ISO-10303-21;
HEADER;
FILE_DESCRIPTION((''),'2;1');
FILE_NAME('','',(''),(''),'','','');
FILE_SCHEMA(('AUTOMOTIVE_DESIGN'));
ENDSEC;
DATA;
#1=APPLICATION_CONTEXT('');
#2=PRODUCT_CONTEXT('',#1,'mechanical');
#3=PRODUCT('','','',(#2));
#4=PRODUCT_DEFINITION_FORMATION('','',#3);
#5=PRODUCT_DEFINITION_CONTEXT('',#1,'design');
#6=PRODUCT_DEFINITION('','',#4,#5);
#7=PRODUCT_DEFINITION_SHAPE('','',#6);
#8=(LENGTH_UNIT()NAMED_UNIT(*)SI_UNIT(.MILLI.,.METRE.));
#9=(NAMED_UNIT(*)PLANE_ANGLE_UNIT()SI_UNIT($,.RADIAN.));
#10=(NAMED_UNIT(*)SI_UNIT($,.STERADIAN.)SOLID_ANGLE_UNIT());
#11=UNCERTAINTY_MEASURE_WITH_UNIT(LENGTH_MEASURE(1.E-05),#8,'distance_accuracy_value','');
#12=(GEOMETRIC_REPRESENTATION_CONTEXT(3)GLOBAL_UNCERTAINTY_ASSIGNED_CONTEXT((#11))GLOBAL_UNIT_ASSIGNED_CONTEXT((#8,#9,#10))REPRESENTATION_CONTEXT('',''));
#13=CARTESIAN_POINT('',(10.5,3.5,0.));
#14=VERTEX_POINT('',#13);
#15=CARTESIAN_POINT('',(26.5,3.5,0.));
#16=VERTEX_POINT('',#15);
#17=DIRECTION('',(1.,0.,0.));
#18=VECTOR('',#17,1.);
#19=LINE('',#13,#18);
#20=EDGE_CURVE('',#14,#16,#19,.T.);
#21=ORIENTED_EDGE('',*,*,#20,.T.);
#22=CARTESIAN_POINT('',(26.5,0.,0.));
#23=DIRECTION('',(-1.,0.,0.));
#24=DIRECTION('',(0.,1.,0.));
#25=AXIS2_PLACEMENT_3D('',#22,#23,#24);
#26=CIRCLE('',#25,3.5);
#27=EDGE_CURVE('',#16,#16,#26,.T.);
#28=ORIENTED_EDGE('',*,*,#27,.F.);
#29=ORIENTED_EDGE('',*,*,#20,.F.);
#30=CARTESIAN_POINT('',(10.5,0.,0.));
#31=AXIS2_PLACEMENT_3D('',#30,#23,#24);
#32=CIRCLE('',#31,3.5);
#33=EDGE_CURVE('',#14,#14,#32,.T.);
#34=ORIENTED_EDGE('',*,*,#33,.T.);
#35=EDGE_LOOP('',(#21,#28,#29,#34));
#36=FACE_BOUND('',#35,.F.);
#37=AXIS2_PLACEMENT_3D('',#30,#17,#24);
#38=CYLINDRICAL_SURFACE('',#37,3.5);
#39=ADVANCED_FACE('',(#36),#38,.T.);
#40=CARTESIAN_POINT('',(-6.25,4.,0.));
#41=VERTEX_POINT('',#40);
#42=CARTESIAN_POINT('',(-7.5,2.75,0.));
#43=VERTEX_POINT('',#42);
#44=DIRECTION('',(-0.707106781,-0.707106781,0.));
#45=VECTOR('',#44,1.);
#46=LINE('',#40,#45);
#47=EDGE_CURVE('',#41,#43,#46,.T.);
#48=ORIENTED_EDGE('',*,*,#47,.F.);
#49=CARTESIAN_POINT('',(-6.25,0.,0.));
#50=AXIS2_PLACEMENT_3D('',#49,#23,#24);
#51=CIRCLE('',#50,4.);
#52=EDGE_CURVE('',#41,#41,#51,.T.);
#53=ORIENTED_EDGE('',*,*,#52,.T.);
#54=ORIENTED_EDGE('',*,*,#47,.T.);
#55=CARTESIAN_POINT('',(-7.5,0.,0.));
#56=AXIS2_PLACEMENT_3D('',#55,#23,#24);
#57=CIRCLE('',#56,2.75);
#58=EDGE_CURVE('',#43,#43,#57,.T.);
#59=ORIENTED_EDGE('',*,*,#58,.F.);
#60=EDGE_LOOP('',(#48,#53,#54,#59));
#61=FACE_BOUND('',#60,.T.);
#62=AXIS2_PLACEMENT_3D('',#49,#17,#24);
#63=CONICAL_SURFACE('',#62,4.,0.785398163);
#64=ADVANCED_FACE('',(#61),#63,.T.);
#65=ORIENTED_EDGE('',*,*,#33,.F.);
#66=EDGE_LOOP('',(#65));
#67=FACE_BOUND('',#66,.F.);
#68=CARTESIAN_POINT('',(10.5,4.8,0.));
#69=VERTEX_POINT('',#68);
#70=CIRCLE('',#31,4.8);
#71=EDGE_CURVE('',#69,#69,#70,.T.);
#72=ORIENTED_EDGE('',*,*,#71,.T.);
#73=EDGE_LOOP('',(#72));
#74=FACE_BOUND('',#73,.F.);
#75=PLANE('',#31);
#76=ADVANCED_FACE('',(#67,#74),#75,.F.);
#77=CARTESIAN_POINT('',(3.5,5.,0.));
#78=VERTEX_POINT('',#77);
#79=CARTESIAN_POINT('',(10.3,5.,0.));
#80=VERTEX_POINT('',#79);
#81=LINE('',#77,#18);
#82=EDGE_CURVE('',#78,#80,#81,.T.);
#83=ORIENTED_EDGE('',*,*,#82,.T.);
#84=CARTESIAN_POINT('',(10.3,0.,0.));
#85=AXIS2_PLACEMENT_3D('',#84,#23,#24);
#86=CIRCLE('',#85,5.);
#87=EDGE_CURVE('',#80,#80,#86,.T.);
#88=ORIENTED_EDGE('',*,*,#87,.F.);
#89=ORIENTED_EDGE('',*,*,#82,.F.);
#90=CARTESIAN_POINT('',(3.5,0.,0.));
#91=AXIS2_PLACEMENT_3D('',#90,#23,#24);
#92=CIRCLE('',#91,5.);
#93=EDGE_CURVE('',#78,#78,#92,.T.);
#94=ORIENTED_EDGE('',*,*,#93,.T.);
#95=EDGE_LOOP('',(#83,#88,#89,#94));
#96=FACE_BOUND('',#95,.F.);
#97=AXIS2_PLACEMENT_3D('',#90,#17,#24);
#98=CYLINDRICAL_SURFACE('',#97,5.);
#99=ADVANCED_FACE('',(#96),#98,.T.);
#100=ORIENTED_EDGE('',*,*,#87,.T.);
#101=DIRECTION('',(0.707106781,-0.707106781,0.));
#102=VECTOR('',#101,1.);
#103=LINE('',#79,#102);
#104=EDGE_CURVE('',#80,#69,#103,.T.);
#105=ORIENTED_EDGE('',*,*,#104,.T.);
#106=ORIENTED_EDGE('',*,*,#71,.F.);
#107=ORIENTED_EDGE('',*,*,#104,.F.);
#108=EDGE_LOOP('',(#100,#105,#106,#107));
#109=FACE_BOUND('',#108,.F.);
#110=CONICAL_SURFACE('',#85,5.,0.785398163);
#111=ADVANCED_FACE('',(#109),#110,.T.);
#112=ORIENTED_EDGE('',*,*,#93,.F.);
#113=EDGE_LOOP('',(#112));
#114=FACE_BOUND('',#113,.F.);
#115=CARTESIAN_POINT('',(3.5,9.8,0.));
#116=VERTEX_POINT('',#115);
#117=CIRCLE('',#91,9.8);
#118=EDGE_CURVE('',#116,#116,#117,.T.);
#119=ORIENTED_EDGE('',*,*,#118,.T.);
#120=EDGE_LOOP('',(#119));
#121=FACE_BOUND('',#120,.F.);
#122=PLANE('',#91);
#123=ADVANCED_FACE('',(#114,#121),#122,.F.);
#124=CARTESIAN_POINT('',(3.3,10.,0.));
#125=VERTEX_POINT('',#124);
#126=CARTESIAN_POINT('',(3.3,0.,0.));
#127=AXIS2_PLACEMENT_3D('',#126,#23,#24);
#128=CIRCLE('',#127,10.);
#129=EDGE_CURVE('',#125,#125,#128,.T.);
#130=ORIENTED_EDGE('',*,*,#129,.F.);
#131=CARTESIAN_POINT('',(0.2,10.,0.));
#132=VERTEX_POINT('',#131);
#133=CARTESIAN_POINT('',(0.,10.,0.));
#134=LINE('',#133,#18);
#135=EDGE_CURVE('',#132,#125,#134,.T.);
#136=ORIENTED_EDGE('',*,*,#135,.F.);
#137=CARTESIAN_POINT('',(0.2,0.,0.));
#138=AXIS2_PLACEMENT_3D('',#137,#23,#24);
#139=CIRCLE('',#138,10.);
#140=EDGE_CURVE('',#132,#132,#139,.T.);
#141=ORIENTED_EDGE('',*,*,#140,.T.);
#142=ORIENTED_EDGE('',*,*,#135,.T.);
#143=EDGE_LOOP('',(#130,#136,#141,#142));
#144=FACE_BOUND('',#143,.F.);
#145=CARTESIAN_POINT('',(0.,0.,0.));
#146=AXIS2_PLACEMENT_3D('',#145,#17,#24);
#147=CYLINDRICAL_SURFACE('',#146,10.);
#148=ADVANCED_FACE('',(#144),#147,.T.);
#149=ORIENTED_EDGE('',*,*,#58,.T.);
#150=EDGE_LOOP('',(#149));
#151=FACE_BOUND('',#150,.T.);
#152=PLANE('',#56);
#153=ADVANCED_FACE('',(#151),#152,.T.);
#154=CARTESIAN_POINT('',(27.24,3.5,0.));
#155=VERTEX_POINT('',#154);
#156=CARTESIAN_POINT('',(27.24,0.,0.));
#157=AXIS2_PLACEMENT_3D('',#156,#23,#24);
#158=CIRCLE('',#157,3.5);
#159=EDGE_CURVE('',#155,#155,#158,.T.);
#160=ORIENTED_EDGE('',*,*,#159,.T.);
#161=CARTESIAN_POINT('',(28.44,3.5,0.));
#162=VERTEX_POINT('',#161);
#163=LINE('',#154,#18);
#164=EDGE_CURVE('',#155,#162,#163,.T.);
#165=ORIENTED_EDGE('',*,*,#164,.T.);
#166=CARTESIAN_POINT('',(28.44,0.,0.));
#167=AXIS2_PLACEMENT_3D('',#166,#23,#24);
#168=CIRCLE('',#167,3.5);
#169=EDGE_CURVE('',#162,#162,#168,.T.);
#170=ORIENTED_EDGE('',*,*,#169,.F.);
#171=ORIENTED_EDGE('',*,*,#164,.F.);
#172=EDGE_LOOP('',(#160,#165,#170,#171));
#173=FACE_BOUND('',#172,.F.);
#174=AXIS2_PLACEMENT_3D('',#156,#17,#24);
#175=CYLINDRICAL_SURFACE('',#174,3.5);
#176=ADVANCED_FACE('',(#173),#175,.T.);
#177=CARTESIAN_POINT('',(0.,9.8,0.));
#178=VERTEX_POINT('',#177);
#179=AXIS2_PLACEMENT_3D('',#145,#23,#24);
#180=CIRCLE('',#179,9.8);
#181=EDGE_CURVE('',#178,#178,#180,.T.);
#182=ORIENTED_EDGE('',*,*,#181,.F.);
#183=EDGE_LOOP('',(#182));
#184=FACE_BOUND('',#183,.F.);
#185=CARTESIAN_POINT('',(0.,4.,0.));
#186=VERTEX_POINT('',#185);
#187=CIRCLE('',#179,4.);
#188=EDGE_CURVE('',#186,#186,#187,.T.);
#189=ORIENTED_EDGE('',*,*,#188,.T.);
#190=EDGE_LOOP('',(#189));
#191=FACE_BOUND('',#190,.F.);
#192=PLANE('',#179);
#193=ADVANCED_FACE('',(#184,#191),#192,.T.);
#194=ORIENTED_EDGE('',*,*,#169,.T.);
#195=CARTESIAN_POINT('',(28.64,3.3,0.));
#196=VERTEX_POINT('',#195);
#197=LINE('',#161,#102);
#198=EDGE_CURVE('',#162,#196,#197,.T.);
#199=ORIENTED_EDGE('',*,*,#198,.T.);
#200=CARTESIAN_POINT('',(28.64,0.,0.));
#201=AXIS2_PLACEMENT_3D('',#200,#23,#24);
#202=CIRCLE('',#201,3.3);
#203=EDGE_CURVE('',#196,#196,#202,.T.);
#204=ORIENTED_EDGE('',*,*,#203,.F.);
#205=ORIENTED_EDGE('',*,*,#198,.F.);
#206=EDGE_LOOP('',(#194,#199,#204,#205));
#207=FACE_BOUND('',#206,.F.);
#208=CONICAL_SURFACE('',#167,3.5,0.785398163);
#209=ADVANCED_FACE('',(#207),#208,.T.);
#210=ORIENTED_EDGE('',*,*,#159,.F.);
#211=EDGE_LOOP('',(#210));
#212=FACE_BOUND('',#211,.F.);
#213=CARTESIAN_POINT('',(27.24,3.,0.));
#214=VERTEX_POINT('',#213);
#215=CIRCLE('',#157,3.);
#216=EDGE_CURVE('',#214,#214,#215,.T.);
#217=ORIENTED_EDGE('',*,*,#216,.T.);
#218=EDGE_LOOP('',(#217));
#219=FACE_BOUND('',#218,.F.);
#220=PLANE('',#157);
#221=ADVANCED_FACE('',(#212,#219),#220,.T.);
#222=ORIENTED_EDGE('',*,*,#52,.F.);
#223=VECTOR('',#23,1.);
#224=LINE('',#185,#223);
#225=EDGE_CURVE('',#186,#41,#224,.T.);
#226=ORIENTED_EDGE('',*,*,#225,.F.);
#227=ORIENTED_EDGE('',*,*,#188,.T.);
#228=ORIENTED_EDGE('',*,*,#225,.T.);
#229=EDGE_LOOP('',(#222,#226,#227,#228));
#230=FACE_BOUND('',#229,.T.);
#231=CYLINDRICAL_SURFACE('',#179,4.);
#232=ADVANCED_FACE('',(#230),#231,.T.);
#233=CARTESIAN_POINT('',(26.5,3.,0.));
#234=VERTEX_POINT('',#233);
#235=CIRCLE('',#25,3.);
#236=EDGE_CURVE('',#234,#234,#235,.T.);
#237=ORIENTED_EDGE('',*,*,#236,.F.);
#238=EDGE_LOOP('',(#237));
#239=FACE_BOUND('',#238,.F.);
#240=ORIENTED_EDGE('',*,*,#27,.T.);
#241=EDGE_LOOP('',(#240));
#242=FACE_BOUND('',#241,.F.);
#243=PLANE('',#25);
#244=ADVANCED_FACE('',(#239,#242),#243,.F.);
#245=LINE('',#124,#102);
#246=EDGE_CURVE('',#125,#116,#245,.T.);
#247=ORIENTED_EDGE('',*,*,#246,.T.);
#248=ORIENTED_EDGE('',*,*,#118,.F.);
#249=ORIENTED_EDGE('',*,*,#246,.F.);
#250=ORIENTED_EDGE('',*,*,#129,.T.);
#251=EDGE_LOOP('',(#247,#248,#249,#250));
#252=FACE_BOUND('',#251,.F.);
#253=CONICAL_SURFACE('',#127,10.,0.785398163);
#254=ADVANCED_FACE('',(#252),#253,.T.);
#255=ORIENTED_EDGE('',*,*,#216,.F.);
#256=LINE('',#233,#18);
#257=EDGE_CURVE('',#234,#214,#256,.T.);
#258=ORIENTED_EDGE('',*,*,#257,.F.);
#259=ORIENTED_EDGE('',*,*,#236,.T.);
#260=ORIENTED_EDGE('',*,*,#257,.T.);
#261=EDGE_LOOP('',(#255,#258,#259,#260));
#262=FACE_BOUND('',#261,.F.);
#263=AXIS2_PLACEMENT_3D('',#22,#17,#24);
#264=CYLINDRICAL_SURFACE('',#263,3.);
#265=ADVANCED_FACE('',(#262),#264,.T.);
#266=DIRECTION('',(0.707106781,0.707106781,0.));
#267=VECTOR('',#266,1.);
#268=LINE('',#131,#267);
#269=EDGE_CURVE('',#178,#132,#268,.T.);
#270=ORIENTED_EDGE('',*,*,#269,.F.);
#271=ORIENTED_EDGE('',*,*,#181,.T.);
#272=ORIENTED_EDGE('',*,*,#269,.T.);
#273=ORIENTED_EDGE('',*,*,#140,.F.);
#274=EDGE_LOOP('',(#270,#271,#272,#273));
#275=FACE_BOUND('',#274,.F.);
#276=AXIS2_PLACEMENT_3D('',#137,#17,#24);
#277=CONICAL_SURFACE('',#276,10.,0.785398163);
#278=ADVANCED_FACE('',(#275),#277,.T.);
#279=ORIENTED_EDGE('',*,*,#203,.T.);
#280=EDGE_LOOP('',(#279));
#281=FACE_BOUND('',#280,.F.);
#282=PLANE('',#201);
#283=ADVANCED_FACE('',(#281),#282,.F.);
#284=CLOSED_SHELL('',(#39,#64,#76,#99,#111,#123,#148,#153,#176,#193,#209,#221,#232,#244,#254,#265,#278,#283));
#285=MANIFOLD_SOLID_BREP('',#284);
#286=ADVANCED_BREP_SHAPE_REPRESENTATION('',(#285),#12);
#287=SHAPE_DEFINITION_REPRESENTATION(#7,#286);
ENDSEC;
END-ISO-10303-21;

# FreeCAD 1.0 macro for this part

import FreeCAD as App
import Part
import Sketcher


def edges_at(feature, points):
    """Names of the edges that pass closest to the given points."""
    edges = feature.Shape.Edges
    near = lambda p: min(range(len(edges)), key=lambda i: edges[i].distToShape(Part.Vertex(*p))[0])
    return sorted({f"Edge{near(p) + 1}" for p in points})


def add_polygon(sketch, points):
    """Adds a closed chain of lines whose ends are joined by coincident constraints."""
    first, n = sketch.GeometryCount, len(points)
    for a, b in zip(points, points[1:] + points[:1]):
        sketch.addGeometry(Part.LineSegment(App.Vector(*a, 0), App.Vector(*b, 0)), False)
    for i in range(n):
        sketch.addConstraint(Sketcher.Constraint("Coincident", first + i, 2, first + (i + 1) % n, 1))

doc = App.newDocument("Part")
params = doc.addObject("Spreadsheet::Sheet", "Params")
for row, (alias, value) in enumerate([
    ("sketch1_width", "16 mm"),
    ("sketch1_width2", "7 mm"),
    ("sketch1_height", "6 mm"),
    ("sketch1_width3", "1.2 mm"),
    ("sketch1_width4", "3.5 mm"),
    ("revolution_angle", "360 deg"),
    ("chamfer_size", "0.2 mm"),
    ("chamfer2_size", "1.25 mm"),
], start=1):
    params.set(f"A{row}", alias)
    params.set(f"B{row}", "=" + value)
    params.setAlias(f"B{row}", alias)

body = doc.addObject("PartDesign::Body", "Body")

# Sketch on XY plane
sketch1 = body.newObject("Sketcher::SketchObject", "Sketch")
sketch1.AttachmentSupport = (doc.getObject("XY_Plane"), [""])
sketch1.MapMode = "FlatFace"
add_polygon(sketch1, [(-7.5, 0), (28.64, 0), (28.64, 3.3), (28.44, 3.5), (27.24, 3.5), (27.24, 3), (26.5, 3), (26.5, 3.5), (10.5, 3.5), (10.5, 5), (3.5, 5), (3.5, 10), (0, 10), (0, 4), (-7.5, 4)])  # lines 0-14
sketch1.addConstraint(Sketcher.Constraint("Horizontal", 0))
sketch1.addConstraint(Sketcher.Constraint("Vertical", 1))
sketch1.addConstraint(Sketcher.Constraint("Horizontal", 3))
sketch1.addConstraint(Sketcher.Constraint("Vertical", 4))
sketch1.addConstraint(Sketcher.Constraint("Horizontal", 5))
sketch1.addConstraint(Sketcher.Constraint("Vertical", 6))
sketch1.addConstraint(Sketcher.Constraint("Horizontal", 7))
sketch1.addConstraint(Sketcher.Constraint("Vertical", 8))
sketch1.addConstraint(Sketcher.Constraint("Horizontal", 9))
sketch1.addConstraint(Sketcher.Constraint("Vertical", 10))
sketch1.addConstraint(Sketcher.Constraint("Horizontal", 11))
sketch1.addConstraint(Sketcher.Constraint("Vertical", 12))
sketch1.addConstraint(Sketcher.Constraint("Horizontal", 13))
sketch1.addConstraint(Sketcher.Constraint("Vertical", 14))
sketch1.addConstraint(Sketcher.Constraint("PointOnObject", 0, 2, -1))
sketch1.addConstraint(Sketcher.Constraint("PointOnObject", 11, 2, -2))
sketch1.addConstraint(Sketcher.Constraint("Horizontal", 3, 2, 6, 2))
sketch1.addConstraint(Sketcher.Constraint("DistanceX", 7, 2, 7, 1, 16.0))
sketch1.addConstraint(Sketcher.Constraint("DistanceX", 9, 2, 9, 1, 7.0))
sketch1.addConstraint(Sketcher.Constraint("DistanceY", 12, 2, 12, 1, 6.0))
sketch1.addConstraint(Sketcher.Constraint("DistanceX", 3, 2, 3, 1, 1.2))
sketch1.addConstraint(Sketcher.Constraint("DistanceX", 11, 2, 11, 1, 3.5))
sketch1.addConstraint(Sketcher.Constraint("DistanceX", 13, 2, 13, 1, 7.5))
sketch1.addConstraint(Sketcher.Constraint("DistanceY", -1, 1, 10, 2, 10.0))
sketch1.addConstraint(Sketcher.Constraint("DistanceY", 5, 2, 10, 2, 7.0))
sketch1.addConstraint(Sketcher.Constraint("DistanceX", 5, 2, 5, 1, 0.74))
sketch1.addConstraint(Sketcher.Constraint("DistanceY", -1, 1, 2, 2, 3.5))
sketch1.addConstraint(Sketcher.Constraint("DistanceX", 2, 2, 1, 2, 0.2))
sketch1.addConstraint(Sketcher.Constraint("DistanceY", 1, 2, 2, 2, 0.2))
sketch1.addConstraint(Sketcher.Constraint("DistanceY", 10, 1, 10, 2, 5.0))
sketch1.setExpression("Constraints[32]", "Params.sketch1_width")
sketch1.setExpression("Constraints[33]", "Params.sketch1_width2")
sketch1.setExpression("Constraints[34]", "Params.sketch1_height")
sketch1.setExpression("Constraints[35]", "Params.sketch1_width3")
sketch1.setExpression("Constraints[36]", "Params.sketch1_width4")
revolution = body.newObject("PartDesign::Revolution", "Revolution")
revolution.Profile = sketch1
revolution.ReferenceAxis = (sketch1, ["H_Axis"])
revolution.setExpression("Angle", "Params.revolution_angle")
doc.recompute()

chamfer = body.newObject("PartDesign::Chamfer", "Chamfer")
chamfer.Base = (revolution, edges_at(revolution, [(10.5, -5, 0), (3.5, -10, 0), (0, -10, 0)]))
chamfer.setExpression("Size", "Params.chamfer_size")
doc.recompute()

chamfer2 = body.newObject("PartDesign::Chamfer", "Chamfer001")
chamfer2.Base = (chamfer, edges_at(chamfer, [(-7.5, -4, 0)]))
chamfer2.setExpression("Size", "Params.chamfer2_size")

doc.recompute()
